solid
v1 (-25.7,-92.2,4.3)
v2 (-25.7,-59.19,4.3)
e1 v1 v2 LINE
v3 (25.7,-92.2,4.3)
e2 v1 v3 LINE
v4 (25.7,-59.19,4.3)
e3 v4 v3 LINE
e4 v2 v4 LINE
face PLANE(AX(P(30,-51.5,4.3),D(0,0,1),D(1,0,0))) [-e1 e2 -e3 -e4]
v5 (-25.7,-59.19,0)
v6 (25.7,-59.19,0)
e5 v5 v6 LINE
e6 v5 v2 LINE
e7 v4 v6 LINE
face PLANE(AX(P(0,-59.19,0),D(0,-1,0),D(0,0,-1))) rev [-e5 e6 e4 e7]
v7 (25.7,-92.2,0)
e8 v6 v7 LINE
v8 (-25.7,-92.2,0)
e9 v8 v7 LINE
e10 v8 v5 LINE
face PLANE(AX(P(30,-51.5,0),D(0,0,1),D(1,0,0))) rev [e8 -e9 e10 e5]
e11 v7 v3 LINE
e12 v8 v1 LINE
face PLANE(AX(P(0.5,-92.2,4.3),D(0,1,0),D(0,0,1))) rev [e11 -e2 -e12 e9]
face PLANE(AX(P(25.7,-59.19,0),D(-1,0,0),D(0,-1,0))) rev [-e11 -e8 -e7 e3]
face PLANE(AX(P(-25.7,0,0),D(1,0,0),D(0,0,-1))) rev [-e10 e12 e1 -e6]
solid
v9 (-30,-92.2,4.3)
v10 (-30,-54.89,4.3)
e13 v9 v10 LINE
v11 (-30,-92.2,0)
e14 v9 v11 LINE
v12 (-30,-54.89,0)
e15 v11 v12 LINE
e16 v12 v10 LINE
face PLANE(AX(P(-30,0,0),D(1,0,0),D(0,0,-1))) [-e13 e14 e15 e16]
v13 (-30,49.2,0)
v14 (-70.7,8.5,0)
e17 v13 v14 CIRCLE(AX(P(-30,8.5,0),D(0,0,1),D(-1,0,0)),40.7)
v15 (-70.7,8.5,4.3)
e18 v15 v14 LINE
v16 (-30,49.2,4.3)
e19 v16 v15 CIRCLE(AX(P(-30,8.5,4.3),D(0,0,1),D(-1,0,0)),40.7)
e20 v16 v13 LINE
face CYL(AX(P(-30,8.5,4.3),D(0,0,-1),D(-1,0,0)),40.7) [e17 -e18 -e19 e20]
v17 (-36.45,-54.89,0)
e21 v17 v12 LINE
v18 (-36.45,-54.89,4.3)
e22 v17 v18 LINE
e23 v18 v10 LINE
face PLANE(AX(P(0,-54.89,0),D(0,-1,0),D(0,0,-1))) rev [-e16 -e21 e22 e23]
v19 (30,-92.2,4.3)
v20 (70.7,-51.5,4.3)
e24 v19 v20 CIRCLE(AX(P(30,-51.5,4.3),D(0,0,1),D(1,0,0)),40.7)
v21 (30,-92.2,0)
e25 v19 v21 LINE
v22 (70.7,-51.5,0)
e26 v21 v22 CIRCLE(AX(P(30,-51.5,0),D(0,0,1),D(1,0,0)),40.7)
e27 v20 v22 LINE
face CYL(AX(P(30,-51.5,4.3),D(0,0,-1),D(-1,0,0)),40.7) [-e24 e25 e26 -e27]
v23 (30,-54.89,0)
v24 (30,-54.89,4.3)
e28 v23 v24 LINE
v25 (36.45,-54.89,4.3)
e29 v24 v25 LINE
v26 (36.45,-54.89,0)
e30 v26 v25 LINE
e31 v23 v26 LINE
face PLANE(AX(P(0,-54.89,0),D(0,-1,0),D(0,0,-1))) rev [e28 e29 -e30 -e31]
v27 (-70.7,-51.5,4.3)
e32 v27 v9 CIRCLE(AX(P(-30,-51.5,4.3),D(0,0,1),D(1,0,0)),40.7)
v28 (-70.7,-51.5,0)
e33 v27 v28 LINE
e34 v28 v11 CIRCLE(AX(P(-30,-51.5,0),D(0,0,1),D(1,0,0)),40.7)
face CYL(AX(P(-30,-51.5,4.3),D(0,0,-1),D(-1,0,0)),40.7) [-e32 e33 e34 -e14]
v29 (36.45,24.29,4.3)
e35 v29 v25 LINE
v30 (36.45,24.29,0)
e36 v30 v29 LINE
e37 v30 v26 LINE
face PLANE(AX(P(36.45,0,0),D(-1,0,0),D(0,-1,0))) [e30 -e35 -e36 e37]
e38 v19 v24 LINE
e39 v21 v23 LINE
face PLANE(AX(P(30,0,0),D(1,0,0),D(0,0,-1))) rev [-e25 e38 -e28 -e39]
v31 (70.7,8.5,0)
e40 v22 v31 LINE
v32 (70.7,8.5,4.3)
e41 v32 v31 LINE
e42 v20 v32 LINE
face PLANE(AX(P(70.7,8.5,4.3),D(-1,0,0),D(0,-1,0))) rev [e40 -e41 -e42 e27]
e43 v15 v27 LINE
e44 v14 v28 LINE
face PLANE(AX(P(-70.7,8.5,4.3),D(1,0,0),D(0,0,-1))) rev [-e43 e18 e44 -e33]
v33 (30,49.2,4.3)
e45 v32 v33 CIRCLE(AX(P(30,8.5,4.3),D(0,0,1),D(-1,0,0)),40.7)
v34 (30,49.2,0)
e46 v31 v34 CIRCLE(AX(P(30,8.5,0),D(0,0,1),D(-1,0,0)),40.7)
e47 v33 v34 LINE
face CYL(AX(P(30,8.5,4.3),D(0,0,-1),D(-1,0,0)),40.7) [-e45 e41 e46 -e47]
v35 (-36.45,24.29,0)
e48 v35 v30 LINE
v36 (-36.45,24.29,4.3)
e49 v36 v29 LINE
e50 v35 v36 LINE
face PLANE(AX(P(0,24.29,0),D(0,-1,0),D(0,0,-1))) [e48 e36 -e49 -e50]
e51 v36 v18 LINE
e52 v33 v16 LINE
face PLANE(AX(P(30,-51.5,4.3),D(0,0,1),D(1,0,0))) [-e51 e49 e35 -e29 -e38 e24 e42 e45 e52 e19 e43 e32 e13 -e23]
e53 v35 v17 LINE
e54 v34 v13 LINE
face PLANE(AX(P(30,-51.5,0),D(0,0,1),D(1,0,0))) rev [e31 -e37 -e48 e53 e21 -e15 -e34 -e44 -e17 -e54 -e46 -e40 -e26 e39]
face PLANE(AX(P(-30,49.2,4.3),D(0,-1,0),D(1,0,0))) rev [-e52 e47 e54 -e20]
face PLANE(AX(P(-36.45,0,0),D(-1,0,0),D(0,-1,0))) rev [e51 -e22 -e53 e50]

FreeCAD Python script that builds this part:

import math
import FreeCAD as App
import Part
import Sketcher
from FreeCAD import Vector
Q = App.Units.Quantity

doc = App.newDocument("Part")
body = doc.addObject("PartDesign::Body", "Body")
body.AllowCompound = True

sketch1 = body.newObject("Sketcher::SketchObject", "Sketch")
sketch1.AttachmentSupport = (doc.getObject("XY_Plane"), [""])
sketch1.MapMode = "FlatFace"
sketch1.addGeometry(Part.ArcOfCircle(Part.Circle(Vector(30, -51, 0), Vector(0, 0, 1), 41), math.radians(-90), math.radians(0)), False)
sketch1.addGeometry(Part.LineSegment(Vector(71, -52, 0), Vector(71, 8, 0)), False)
sketch1.addGeometry(Part.ArcOfCircle(Part.Circle(Vector(30, 8, 0), Vector(0, 0, 1), 41), math.radians(0), math.radians(90)), False)
sketch1.addGeometry(Part.LineSegment(Vector(30, 49, 0), Vector(-30, 49, 0)), False)
sketch1.addGeometry(Part.ArcOfCircle(Part.Circle(Vector(-30, 8, 0), Vector(0, 0, 1), 41), math.radians(90), math.radians(180)), False)
sketch1.addGeometry(Part.LineSegment(Vector(-71, 8, 0), Vector(-71, -52, 0)), False)
sketch1.addGeometry(Part.ArcOfCircle(Part.Circle(Vector(-30, -51, 0), Vector(0, 0, 1), 41), math.radians(-180), math.radians(-90)), False)
sketch1.addGeometry(Part.LineSegment(Vector(-30, -92, 0), Vector(30, -92, 0)), False)
sketch1.addConstraint(Sketcher.Constraint("Tangent", 0, 2, 1, 1))
sketch1.addConstraint(Sketcher.Constraint("Tangent", 1, 2, 2, 1))
sketch1.addConstraint(Sketcher.Constraint("Tangent", 2, 2, 3, 1))
sketch1.addConstraint(Sketcher.Constraint("Tangent", 3, 2, 4, 1))
sketch1.addConstraint(Sketcher.Constraint("Tangent", 4, 2, 5, 1))
sketch1.addConstraint(Sketcher.Constraint("Tangent", 5, 2, 6, 1))
sketch1.addConstraint(Sketcher.Constraint("Tangent", 6, 2, 7, 1))
sketch1.addConstraint(Sketcher.Constraint("Tangent", 7, 2, 0, 1))
sketch1.addConstraint(Sketcher.Constraint("Vertical", 1))
sketch1.addConstraint(Sketcher.Constraint("Horizontal", 3))
sketch1.addConstraint(Sketcher.Constraint("Vertical", 5))
sketch1.addConstraint(Sketcher.Constraint("Horizontal", 7))
sketch1.addConstraint(Sketcher.Constraint("Equal", 0, 2))
sketch1.addConstraint(Sketcher.Constraint("Equal", 2, 4))
sketch1.addConstraint(Sketcher.Constraint("Equal", 4, 6))
sketch1.addConstraint(Sketcher.Constraint("Equal", 7, 1))
sketch1.addConstraint(Sketcher.Constraint("Radius", 0, Q("40.7 mm")))
sketch1.addConstraint(Sketcher.Constraint("DistanceX", 3, 2, 3, 1, Q("60 mm")))
sketch1.addConstraint(Sketcher.Constraint("DistanceX", -1, 1, 0, 3, Q("30 mm")))
sketch1.addConstraint(Sketcher.Constraint("DistanceY", 0, 3, -1, 1, Q("51.5 mm")))
pad1 = body.newObject("PartDesign::Pad", "Pad")
pad1.Profile = sketch1
pad1.Length = 4.3

sketch2 = body.newObject("Sketcher::SketchObject", "Sketch001")
sketch2.AttachmentSupport = (doc.getObject("XY_Plane"), [""])
sketch2.MapMode = "FlatFace"
sketch2.AttachmentOffset = App.Placement(Vector(0, 0, 4.3), App.Rotation())
sketch2.addGeometry(Part.LineSegment(Vector(-36.5, -54.9, 0), Vector(-30, -54.9, 0)), False)
sketch2.addGeometry(Part.LineSegment(Vector(-30, -54.9, 0), Vector(-30, -92.2, 0)), False)
sketch2.addGeometry(Part.LineSegment(Vector(-30, -92.2, 0), Vector(-25.7, -92.2, 0)), False)
sketch2.addGeometry(Part.LineSegment(Vector(-25.7, -92.2, 0), Vector(-25.7, -59.2, 0)), False)
sketch2.addGeometry(Part.LineSegment(Vector(-25.7, -59.2, 0), Vector(25.7, -59.2, 0)), False)
sketch2.addGeometry(Part.LineSegment(Vector(25.7, -59.2, 0), Vector(25.7, -92.2, 0)), False)
sketch2.addGeometry(Part.LineSegment(Vector(25.7, -92.2, 0), Vector(30, -92.2, 0)), False)
sketch2.addGeometry(Part.LineSegment(Vector(30, -92.2, 0), Vector(30, -54.9, 0)), False)
sketch2.addGeometry(Part.LineSegment(Vector(30, -54.9, 0), Vector(36.5, -54.9, 0)), False)
sketch2.addGeometry(Part.LineSegment(Vector(36.5, -54.9, 0), Vector(36.5, 24.3, 0)), False)
sketch2.addGeometry(Part.LineSegment(Vector(36.5, 24.3, 0), Vector(-36.5, 24.3, 0)), False)
sketch2.addGeometry(Part.LineSegment(Vector(-36.5, 24.3, 0), Vector(-36.5, -54.9, 0)), False)
sketch2.addConstraint(Sketcher.Constraint("Coincident", 0, 2, 1, 1))
sketch2.addConstraint(Sketcher.Constraint("Coincident", 1, 2, 2, 1))
sketch2.addConstraint(Sketcher.Constraint("Coincident", 2, 2, 3, 1))
sketch2.addConstraint(Sketcher.Constraint("Coincident", 3, 2, 4, 1))
sketch2.addConstraint(Sketcher.Constraint("Coincident", 4, 2, 5, 1))
sketch2.addConstraint(Sketcher.Constraint("Coincident", 5, 2, 6, 1))
sketch2.addConstraint(Sketcher.Constraint("Coincident", 6, 2, 7, 1))
sketch2.addConstraint(Sketcher.Constraint("Coincident", 7, 2, 8, 1))
sketch2.addConstraint(Sketcher.Constraint("Coincident", 8, 2, 9, 1))
sketch2.addConstraint(Sketcher.Constraint("Coincident", 9, 2, 10, 1))
sketch2.addConstraint(Sketcher.Constraint("Coincident", 10, 2, 11, 1))
sketch2.addConstraint(Sketcher.Constraint("Coincident", 11, 2, 0, 1))
sketch2.addConstraint(Sketcher.Constraint("Horizontal", 0))
sketch2.addConstraint(Sketcher.Constraint("Vertical", 1))
sketch2.addConstraint(Sketcher.Constraint("Horizontal", 2))
sketch2.addConstraint(Sketcher.Constraint("Vertical", 3))
sketch2.addConstraint(Sketcher.Constraint("Horizontal", 4))
sketch2.addConstraint(Sketcher.Constraint("Vertical", 5))
sketch2.addConstraint(Sketcher.Constraint("Horizontal", 6))
sketch2.addConstraint(Sketcher.Constraint("Vertical", 7))
sketch2.addConstraint(Sketcher.Constraint("Horizontal", 8))
sketch2.addConstraint(Sketcher.Constraint("Vertical", 9))
sketch2.addConstraint(Sketcher.Constraint("Horizontal", 10))
sketch2.addConstraint(Sketcher.Constraint("Vertical", 11))
sketch2.addConstraint(Sketcher.Constraint("Symmetric", 2, 2, 5, 2, -2))
sketch2.addConstraint(Sketcher.Constraint("Symmetric", 0, 2, 7, 2, -2))
sketch2.addConstraint(Sketcher.Constraint("Equal", 0, 8))
sketch2.addConstraint(Sketcher.Constraint("DistanceX", 2, 1, 2, 2, Q("4.3 mm")))
sketch2.addConstraint(Sketcher.Constraint("DistanceX", 4, 1, 4, 2, Q("51.4 mm")))
sketch2.addConstraint(Sketcher.Constraint("DistanceX", 10, 2, 10, 1, Q("72.9 mm")))
sketch2.addConstraint(Sketcher.Constraint("DistanceY", 1, 2, 1, 1, Q("37.31 mm")))
sketch2.addConstraint(Sketcher.Constraint("DistanceY", 3, 1, 3, 2, Q("33.01 mm")))
sketch2.addConstraint(Sketcher.Constraint("DistanceY", 9, 1, 9, 2, Q("79.18 mm")))
sketch2.addConstraint(Sketcher.Constraint("DistanceY", 1, 2, -1, 1, Q("92.2 mm")))
pocket1 = body.newObject("PartDesign::Pocket", "Pocket")
pocket1.Profile = sketch2
pocket1.Length = 4.3

doc.recompute()
